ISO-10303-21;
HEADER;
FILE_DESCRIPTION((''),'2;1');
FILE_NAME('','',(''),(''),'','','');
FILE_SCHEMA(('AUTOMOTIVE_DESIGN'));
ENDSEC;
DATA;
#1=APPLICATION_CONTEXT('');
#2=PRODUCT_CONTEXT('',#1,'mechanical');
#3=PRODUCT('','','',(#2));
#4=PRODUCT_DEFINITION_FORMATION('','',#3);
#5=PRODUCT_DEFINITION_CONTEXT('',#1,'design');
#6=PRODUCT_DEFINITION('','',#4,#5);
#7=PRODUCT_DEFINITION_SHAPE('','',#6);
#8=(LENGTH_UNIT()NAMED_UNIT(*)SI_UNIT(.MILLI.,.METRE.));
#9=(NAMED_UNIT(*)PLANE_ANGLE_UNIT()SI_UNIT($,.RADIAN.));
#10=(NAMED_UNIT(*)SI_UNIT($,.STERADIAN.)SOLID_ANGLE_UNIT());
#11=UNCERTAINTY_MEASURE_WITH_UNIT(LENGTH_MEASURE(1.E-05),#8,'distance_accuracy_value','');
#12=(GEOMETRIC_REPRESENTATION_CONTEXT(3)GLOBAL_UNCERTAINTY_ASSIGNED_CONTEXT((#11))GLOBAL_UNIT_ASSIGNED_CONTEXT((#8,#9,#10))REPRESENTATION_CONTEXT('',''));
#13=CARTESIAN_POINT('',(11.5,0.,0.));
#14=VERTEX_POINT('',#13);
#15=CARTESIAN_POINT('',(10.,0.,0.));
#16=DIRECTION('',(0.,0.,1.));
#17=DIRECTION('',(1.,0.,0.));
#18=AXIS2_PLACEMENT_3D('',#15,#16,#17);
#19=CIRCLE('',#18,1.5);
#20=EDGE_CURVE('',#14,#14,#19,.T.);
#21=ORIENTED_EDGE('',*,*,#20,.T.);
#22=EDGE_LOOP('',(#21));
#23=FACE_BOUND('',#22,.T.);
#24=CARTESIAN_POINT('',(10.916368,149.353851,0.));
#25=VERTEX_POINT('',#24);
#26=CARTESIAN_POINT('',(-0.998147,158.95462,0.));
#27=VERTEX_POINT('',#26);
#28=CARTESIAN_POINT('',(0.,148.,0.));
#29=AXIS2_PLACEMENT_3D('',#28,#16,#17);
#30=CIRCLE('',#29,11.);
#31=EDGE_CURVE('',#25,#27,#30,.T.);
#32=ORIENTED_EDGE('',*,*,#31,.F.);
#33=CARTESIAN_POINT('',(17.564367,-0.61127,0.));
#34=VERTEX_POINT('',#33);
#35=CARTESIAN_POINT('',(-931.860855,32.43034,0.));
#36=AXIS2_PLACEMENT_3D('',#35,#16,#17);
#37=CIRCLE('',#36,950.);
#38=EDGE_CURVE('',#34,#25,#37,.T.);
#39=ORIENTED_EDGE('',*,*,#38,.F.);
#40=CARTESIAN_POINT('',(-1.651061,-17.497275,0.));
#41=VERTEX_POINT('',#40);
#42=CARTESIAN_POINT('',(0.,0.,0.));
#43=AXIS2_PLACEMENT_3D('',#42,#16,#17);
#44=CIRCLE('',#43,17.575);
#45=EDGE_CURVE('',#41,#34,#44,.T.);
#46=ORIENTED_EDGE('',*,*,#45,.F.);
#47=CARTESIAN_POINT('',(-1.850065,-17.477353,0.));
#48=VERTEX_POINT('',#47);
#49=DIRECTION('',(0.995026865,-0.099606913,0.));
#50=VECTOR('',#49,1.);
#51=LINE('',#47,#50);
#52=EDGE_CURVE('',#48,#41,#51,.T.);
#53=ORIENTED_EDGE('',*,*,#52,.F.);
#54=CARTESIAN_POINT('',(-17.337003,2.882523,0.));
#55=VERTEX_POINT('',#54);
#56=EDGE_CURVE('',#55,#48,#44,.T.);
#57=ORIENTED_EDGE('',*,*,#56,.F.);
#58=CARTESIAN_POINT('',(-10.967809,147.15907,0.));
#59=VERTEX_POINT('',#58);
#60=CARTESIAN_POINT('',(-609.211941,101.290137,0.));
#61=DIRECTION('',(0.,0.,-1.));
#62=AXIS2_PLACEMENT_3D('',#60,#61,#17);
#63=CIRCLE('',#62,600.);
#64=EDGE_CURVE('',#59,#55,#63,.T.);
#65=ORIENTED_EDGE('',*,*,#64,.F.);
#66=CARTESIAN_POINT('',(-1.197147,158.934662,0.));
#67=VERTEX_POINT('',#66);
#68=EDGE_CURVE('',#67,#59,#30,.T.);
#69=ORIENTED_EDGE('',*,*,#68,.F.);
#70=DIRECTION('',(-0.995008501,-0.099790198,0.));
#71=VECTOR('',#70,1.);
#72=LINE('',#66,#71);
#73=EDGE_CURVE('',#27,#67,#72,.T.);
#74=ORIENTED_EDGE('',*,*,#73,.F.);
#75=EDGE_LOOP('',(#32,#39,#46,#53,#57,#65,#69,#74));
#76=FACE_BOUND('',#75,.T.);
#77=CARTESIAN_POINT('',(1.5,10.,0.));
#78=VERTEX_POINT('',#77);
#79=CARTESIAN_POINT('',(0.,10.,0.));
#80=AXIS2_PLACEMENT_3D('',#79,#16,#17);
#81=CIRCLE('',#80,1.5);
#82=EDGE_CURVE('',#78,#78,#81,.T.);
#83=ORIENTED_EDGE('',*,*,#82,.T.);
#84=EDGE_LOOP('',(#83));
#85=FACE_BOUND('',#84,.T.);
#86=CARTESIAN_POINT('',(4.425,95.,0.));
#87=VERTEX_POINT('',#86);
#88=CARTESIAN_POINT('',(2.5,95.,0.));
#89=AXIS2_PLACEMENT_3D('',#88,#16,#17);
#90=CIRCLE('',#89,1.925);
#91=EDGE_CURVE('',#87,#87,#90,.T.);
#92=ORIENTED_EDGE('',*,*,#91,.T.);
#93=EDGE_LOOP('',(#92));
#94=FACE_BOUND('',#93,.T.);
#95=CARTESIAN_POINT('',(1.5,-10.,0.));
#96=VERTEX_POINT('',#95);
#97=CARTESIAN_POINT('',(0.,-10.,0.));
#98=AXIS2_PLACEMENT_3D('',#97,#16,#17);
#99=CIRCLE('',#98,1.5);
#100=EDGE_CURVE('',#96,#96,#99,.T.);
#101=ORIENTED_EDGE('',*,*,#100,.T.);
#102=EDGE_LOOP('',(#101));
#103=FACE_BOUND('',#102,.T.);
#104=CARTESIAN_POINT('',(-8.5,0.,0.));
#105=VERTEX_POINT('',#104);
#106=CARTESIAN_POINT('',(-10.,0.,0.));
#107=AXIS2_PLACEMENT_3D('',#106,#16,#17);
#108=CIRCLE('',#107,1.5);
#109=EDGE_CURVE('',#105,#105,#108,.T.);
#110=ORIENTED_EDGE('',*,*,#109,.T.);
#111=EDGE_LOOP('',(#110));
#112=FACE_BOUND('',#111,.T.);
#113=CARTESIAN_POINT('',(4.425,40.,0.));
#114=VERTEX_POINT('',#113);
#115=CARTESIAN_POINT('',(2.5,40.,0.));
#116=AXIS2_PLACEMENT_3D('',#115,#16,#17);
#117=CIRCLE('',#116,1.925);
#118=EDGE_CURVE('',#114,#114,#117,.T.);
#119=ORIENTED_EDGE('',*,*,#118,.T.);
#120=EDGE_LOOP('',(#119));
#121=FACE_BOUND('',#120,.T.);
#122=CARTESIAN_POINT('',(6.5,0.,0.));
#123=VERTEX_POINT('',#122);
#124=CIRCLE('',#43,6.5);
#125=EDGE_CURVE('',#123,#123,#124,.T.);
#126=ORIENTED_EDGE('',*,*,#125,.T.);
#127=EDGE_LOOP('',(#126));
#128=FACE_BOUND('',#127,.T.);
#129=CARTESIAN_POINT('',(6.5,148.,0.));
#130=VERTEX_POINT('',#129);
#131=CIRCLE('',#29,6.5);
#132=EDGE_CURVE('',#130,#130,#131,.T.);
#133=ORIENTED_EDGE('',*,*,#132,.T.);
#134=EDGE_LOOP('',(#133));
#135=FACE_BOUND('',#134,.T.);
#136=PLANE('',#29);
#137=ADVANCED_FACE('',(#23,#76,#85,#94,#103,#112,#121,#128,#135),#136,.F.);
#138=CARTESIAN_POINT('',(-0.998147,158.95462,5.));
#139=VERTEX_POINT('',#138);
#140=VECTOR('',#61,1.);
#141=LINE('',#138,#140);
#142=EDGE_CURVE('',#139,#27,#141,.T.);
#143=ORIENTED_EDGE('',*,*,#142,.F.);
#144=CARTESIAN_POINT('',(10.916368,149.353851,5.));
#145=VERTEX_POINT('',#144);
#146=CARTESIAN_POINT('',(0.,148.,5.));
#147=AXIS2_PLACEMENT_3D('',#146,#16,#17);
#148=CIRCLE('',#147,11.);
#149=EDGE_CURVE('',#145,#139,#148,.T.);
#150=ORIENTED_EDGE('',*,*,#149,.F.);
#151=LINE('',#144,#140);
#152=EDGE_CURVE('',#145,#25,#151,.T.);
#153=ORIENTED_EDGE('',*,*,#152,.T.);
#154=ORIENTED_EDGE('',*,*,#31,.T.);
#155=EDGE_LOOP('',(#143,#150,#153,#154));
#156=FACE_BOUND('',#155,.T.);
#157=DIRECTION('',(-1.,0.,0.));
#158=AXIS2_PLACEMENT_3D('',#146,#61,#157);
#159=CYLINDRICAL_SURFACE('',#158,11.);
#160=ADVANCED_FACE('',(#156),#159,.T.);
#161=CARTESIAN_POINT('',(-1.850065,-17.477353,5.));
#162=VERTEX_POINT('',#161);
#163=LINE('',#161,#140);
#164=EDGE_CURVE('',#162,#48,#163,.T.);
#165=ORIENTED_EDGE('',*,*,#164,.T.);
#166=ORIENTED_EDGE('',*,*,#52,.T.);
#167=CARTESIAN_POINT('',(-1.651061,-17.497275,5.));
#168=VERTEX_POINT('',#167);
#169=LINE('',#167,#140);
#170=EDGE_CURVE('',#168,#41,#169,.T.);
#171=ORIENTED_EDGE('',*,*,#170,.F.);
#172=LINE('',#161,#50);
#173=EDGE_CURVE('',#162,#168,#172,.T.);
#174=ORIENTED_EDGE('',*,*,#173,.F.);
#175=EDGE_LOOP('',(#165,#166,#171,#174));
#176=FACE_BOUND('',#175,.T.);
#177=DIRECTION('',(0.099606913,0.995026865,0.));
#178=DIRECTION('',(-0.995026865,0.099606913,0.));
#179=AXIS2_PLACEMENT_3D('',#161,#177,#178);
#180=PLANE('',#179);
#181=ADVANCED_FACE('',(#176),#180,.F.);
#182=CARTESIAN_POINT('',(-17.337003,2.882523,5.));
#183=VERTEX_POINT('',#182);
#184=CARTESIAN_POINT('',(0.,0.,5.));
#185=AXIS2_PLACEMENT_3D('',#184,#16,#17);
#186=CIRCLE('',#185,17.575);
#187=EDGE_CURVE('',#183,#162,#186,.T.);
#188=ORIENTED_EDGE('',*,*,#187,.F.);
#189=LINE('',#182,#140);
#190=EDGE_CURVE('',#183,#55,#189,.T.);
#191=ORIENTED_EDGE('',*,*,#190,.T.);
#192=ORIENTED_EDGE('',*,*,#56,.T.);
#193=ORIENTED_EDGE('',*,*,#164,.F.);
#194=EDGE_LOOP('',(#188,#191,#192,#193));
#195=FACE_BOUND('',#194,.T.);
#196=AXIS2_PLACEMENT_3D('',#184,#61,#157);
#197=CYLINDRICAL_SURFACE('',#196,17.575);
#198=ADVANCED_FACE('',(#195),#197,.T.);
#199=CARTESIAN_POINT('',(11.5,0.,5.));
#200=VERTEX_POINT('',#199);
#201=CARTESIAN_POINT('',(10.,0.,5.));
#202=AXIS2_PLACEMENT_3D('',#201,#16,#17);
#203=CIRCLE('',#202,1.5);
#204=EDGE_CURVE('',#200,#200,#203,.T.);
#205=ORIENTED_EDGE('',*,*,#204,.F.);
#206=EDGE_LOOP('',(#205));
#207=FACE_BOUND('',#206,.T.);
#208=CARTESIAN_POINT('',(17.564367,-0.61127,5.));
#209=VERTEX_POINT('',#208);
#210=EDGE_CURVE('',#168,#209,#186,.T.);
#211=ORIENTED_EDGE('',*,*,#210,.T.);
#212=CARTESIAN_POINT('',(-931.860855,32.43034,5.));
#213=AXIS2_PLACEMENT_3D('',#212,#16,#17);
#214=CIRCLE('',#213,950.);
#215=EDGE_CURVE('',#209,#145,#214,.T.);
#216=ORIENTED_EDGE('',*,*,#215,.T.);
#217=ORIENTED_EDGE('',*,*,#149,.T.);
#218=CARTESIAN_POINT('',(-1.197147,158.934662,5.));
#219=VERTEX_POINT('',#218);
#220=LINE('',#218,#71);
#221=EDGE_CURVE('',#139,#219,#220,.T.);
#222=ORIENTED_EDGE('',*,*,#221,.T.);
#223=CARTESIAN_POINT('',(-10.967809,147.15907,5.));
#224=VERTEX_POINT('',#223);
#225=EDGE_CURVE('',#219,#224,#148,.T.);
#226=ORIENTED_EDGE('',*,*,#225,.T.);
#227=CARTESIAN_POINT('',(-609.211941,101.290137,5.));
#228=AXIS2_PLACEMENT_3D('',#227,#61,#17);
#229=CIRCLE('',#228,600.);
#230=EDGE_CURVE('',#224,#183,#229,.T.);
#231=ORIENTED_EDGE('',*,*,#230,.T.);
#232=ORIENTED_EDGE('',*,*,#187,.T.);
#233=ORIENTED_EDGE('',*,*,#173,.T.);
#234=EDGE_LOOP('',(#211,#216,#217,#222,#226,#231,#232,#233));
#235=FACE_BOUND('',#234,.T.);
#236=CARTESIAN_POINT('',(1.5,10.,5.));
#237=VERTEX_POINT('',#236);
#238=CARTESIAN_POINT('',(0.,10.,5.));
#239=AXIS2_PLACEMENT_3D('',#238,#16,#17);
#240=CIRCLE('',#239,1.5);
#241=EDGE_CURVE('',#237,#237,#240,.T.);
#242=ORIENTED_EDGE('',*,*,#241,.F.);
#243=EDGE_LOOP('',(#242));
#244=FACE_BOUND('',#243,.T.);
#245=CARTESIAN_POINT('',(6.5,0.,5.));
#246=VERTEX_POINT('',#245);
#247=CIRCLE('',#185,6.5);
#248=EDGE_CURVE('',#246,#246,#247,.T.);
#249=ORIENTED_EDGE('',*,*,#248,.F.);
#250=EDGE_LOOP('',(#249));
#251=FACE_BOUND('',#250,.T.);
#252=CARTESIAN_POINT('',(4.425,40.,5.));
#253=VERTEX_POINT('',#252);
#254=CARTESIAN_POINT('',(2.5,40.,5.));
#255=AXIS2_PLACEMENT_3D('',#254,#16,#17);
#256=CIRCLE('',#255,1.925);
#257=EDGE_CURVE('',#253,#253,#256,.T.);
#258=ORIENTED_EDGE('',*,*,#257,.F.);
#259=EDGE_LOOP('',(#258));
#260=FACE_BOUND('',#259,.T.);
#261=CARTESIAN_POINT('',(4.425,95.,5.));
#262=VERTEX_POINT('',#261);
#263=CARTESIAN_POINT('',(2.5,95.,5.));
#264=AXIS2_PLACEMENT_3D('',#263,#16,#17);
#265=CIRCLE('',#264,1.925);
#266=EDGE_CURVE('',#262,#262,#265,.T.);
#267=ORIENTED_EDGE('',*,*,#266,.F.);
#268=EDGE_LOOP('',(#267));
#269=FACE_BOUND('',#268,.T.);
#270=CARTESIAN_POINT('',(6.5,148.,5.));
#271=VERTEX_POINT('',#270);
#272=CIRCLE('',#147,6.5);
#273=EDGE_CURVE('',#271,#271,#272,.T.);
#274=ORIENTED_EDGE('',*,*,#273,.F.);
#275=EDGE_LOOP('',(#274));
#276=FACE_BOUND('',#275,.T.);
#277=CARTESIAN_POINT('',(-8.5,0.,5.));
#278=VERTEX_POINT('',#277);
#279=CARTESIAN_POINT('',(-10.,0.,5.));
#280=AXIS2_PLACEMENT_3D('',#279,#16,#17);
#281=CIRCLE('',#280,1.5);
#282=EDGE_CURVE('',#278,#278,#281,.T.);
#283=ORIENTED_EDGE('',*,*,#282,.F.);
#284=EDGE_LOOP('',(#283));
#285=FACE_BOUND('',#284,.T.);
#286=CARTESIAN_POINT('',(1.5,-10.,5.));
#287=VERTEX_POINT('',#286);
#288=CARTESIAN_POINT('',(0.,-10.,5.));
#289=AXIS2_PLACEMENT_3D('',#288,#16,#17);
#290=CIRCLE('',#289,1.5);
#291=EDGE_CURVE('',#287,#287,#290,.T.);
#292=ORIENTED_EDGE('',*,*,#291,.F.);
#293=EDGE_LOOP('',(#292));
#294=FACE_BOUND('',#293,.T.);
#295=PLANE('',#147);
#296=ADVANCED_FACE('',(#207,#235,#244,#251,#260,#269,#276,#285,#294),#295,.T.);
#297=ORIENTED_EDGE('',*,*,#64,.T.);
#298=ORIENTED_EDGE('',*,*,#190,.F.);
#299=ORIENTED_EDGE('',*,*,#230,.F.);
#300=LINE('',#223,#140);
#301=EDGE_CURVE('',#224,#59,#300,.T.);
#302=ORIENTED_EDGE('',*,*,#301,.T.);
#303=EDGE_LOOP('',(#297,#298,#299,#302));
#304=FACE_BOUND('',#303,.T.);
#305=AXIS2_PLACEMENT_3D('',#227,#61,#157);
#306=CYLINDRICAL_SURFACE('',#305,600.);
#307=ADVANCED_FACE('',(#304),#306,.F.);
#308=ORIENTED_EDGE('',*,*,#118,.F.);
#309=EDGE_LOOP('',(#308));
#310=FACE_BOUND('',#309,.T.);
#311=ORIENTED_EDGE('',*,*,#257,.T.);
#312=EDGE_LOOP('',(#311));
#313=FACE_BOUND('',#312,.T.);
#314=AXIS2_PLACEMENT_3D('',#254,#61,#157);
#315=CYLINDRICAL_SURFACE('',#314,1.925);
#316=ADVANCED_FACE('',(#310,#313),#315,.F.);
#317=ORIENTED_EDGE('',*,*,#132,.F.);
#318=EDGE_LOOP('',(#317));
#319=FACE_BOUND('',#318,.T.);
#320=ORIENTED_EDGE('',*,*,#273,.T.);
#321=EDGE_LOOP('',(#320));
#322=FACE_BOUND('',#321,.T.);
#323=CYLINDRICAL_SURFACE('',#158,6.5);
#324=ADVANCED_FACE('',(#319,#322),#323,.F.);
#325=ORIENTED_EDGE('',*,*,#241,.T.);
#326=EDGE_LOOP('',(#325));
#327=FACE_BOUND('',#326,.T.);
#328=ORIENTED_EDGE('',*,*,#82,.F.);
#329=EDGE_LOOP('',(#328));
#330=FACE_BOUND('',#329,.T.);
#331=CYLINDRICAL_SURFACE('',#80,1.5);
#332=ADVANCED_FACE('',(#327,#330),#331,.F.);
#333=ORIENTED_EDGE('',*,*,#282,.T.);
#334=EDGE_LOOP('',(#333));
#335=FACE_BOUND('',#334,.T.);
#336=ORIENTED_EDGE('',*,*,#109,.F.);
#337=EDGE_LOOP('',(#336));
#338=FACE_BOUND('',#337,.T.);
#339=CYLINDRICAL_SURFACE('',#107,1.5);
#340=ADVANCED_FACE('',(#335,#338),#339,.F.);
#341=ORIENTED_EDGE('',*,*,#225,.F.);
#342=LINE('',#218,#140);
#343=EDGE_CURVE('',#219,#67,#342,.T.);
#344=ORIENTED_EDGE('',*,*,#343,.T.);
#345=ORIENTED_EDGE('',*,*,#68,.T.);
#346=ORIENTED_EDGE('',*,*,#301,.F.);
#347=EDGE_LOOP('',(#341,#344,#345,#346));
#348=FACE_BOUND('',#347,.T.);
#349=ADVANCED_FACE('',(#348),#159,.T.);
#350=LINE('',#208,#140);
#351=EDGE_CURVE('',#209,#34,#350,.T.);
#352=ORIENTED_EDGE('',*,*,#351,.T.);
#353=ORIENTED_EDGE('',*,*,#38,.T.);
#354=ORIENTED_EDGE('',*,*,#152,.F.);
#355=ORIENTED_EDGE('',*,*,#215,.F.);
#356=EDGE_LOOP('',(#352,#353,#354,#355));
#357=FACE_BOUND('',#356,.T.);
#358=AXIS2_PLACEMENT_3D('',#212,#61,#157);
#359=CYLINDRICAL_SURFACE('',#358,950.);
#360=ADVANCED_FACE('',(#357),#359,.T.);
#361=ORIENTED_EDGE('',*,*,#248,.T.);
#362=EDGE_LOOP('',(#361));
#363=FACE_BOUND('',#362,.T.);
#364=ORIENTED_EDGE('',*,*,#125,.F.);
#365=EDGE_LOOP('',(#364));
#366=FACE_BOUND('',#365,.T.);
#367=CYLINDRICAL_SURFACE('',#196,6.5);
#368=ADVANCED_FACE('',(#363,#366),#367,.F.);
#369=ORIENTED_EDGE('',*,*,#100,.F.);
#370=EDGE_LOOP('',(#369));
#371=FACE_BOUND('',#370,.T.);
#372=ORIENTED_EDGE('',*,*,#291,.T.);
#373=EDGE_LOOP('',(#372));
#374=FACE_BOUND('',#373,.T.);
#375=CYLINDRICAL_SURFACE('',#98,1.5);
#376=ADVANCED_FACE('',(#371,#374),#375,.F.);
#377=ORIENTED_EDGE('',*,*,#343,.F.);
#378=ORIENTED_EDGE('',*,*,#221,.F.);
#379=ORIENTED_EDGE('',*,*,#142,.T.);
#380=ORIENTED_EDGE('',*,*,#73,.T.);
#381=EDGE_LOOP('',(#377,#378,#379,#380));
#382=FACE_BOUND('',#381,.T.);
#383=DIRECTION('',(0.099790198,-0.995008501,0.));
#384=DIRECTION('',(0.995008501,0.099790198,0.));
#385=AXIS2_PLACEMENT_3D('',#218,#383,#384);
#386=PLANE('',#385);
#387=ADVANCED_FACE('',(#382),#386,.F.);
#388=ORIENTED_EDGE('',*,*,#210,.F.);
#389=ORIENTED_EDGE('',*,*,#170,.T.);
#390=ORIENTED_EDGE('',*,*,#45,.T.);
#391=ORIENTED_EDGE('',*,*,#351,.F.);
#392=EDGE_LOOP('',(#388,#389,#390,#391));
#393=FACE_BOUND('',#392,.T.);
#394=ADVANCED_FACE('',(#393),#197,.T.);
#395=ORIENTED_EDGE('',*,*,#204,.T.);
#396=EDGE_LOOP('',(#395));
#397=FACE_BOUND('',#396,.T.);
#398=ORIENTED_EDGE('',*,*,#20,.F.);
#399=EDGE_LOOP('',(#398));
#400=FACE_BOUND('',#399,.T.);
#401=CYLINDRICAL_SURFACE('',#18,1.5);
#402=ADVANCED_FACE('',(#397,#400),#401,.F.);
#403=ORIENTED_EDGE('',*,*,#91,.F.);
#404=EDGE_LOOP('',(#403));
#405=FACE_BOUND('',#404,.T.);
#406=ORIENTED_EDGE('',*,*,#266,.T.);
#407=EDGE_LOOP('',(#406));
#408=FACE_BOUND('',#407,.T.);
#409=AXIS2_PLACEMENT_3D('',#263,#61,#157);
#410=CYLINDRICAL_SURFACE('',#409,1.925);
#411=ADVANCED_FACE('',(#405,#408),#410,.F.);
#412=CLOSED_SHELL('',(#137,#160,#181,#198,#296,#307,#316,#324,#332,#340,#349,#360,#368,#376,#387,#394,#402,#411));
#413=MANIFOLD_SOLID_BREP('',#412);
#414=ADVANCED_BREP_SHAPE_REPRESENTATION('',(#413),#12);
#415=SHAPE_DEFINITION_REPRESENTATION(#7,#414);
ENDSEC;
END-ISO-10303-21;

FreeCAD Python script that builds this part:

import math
import FreeCAD as App
import Part
import Sketcher
from FreeCAD import Vector
Q = App.Units.Quantity

doc = App.newDocument("Part")
body = doc.addObject("PartDesign::Body", "Body")

# Sketch on XY plane
sketch1 = body.newObject("Sketcher::SketchObject", "Sketch")
sketch1.AttachmentSupport = (doc.getObject("XY_Plane"), [""])
sketch1.MapMode = "FlatFace"
sketch1.addGeometry(Part.LineSegment(Vector(-1, 158.95, 0), Vector(-1.2, 158.93, 0)), False)
sketch1.addGeometry(Part.ArcOfCircle(Part.Circle(Vector(0, 148, 0), Vector(0, 0, 1), 11), math.radians(96), math.radians(184)), False)
sketch1.addGeometry(Part.ArcOfCircle(Part.Circle(Vector(-609.21, 101.29, 0), Vector(0, 0, 1), 600), math.radians(-9.44), math.radians(4.38)), False)
sketch1.addGeometry(Part.ArcOfCircle(Part.Circle(Vector(0, 0, 0), Vector(0, 0, 1), 17.57), math.radians(171), math.radians(264)), False)
sketch1.addGeometry(Part.LineSegment(Vector(-1.85, -17.48, 0), Vector(-1.65, -17.5, 0)), False)
sketch1.addGeometry(Part.ArcOfCircle(Part.Circle(Vector(0, 0, 0), Vector(0, 0, 1), 17.57), math.radians(-95), math.radians(-2)), False)
sketch1.addGeometry(Part.ArcOfCircle(Part.Circle(Vector(-931.86, 32.43, 0), Vector(0, 0, 1), 950), math.radians(-1.99), math.radians(7.07)), False)
sketch1.addGeometry(Part.ArcOfCircle(Part.Circle(Vector(0, 148, 0), Vector(0, 0, 1), 11), math.radians(7), math.radians(95)), False)
sketch1.addGeometry(Part.Circle(Vector(10, 0, 0), Vector(0, 0, 1), 0.93), False)
sketch1.addGeometry(Part.Circle(Vector(2.5, 40, 0), Vector(0, 0, 1), 1.93), False)
sketch1.addGeometry(Part.Circle(Vector(0, -10, 0), Vector(0, 0, 1), 0.93), False)
sketch1.addGeometry(Part.Circle(Vector(0, 0, 0), Vector(0, 0, 1), 6.5), False)
sketch1.addGeometry(Part.Circle(Vector(0, 10, 0), Vector(0, 0, 1), 0.93), False)
sketch1.addGeometry(Part.Circle(Vector(-10, 0, 0), Vector(0, 0, 1), 0.93), False)
sketch1.addGeometry(Part.Circle(Vector(2.5, 95, 0), Vector(0, 0, 1), 1.93), False)
sketch1.addGeometry(Part.Circle(Vector(0, 148, 0), Vector(0, 0, 1), 6.5), False)
sketch1.addConstraint(Sketcher.Constraint("Coincident", 0, 2, 1, 1))
sketch1.addConstraint(Sketcher.Constraint("Tangent", 1, 2, 2, 2))
sketch1.addConstraint(Sketcher.Constraint("Tangent", 2, 1, 3, 1))
sketch1.addConstraint(Sketcher.Constraint("Coincident", 3, 2, 4, 1))
sketch1.addConstraint(Sketcher.Constraint("Coincident", 4, 2, 5, 1))
sketch1.addConstraint(Sketcher.Constraint("Tangent", 5, 2, 6, 1))
sketch1.addConstraint(Sketcher.Constraint("Tangent", 6, 2, 7, 1))
sketch1.addConstraint(Sketcher.Constraint("Coincident", 7, 2, 0, 1))
sketch1.addConstraint(Sketcher.Constraint("Coincident", 3, 3, -1, 1))
sketch1.addConstraint(Sketcher.Constraint("Coincident", 5, 3, -1, 1))
sketch1.addConstraint(Sketcher.Constraint("Coincident", 11, 3, -1, 1))
sketch1.addConstraint(Sketcher.Constraint("Coincident", 7, 3, 1, 3))
sketch1.addConstraint(Sketcher.Constraint("Coincident", 15, 3, 1, 3))
sketch1.addConstraint(Sketcher.Constraint("Equal", 3, 5))
sketch1.addConstraint(Sketcher.Constraint("Equal", 1, 7))
sketch1.addConstraint(Sketcher.Constraint("Equal", 8, 10))
sketch1.addConstraint(Sketcher.Constraint("Equal", 10, 12))
sketch1.addConstraint(Sketcher.Constraint("Equal", 12, 13))
sketch1.addConstraint(Sketcher.Constraint("Equal", 9, 14))
sketch1.addConstraint(Sketcher.Constraint("Equal", 11, 15))
sketch1.addConstraint(Sketcher.Constraint("Symmetric", 10, 3, 12, 3, -1, 1))
sketch1.addConstraint(Sketcher.Constraint("Symmetric", 8, 3, 13, 3, -1, 1))
sketch1.addConstraint(Sketcher.Constraint("PointOnObject", 1, 3, -2))
sketch1.addConstraint(Sketcher.Constraint("PointOnObject", 8, 3, -1))
sketch1.addConstraint(Sketcher.Constraint("PointOnObject", 10, 3, -2))
sketch1.addConstraint(Sketcher.Constraint("Vertical", 9, 3, 14, 3))
sketch1.addConstraint(Sketcher.Constraint("Equal", 0, 4))
sketch1.addConstraint(Sketcher.Constraint("Diameter", 11, Q("13 mm")))
sketch1.addConstraint(Sketcher.Constraint("Radius", 1, Q("11 mm")))
sketch1.addConstraint(Sketcher.Constraint("Radius", 2, Q("600 mm")))
sketch1.addConstraint(Sketcher.Constraint("Radius", 6, Q("950 mm")))
sketch1.addConstraint(Sketcher.Constraint("Diameter", 8, Q("1.85 mm")))
sketch1.addConstraint(Sketcher.Constraint("Diameter", 9, Q("3.85 mm")))
sketch1.addConstraint(Sketcher.Constraint("DistanceY", -1, 1, 1, 3, Q("148 mm")))
sketch1.addConstraint(Sketcher.Constraint("DistanceX", -1, 1, 8, 3, Q("10 mm")))
sketch1.addConstraint(Sketcher.Constraint("DistanceY", -1, 1, 9, 3, Q("40 mm")))
sketch1.addConstraint(Sketcher.Constraint("DistanceY", 10, 3, -1, 1, Q("10 mm")))
sketch1.addConstraint(Sketcher.Constraint("DistanceY", -1, 1, 14, 3, Q("95 mm")))
sketch1.addConstraint(Sketcher.Constraint("Radius", 3, Q("17.575 mm")))
sketch1.addConstraint(Sketcher.Constraint("Distance", 4, Q("0.199999 mm")))
sketch1.addConstraint(Sketcher.Constraint("DistanceX", -1, 1, 9, 3, Q("2.5 mm")))
sketch1.addConstraint(Sketcher.Constraint("DistanceX", 4, 2, -1, 1, Q("1.651061 mm")))
sketch1.addConstraint(Sketcher.Constraint("DistanceY", -1, 1, 7, 2, Q("158.95462 mm")))
pad1 = body.newObject("PartDesign::Pad", "Pad")
pad1.Profile = sketch1
pad1.Length = 5

# Sketch on XY plane
sketch2 = body.newObject("Sketcher::SketchObject", "Sketch001")
sketch2.AttachmentSupport = (doc.getObject("XY_Plane"), [""])
sketch2.MapMode = "FlatFace"
sketch2.AttachmentOffset = App.Placement(Vector(0, 0, 5), App.Rotation())
sketch2.addGeometry(Part.Circle(Vector(0, 10, 0), Vector(0, 0, 1), 1.5), False)
sketch2.addGeometry(Part.Circle(Vector(10, 0, 0), Vector(0, 0, 1), 1.5), False)
sketch2.addGeometry(Part.Circle(Vector(-10, 0, 0), Vector(0, 0, 1), 1.5), False)
sketch2.addGeometry(Part.Circle(Vector(0, -10, 0), Vector(0, 0, 1), 1.5), False)
sketch2.addConstraint(Sketcher.Constraint("Equal", 0, 1))
sketch2.addConstraint(Sketcher.Constraint("Equal", 1, 2))
sketch2.addConstraint(Sketcher.Constraint("Equal", 2, 3))
sketch2.addConstraint(Sketcher.Constraint("Symmetric", 1, 3, 2, 3, -1, 1))
sketch2.addConstraint(Sketcher.Constraint("Symmetric", 0, 3, 3, 3, -1, 1))
sketch2.addConstraint(Sketcher.Constraint("PointOnObject", 0, 3, -2))
sketch2.addConstraint(Sketcher.Constraint("PointOnObject", 1, 3, -1))
sketch2.addConstraint(Sketcher.Constraint("Diameter", 0, Q("3 mm")))
sketch2.addConstraint(Sketcher.Constraint("DistanceY", -1, 1, 0, 3, Q("10 mm")))
sketch2.addConstraint(Sketcher.Constraint("DistanceX", -1, 1, 1, 3, Q("10 mm")))
pocket1 = body.newObject("PartDesign::Pocket", "Pocket")
pocket1.Profile = sketch2
pocket1.Type = "ThroughAll"

doc.recompute()
